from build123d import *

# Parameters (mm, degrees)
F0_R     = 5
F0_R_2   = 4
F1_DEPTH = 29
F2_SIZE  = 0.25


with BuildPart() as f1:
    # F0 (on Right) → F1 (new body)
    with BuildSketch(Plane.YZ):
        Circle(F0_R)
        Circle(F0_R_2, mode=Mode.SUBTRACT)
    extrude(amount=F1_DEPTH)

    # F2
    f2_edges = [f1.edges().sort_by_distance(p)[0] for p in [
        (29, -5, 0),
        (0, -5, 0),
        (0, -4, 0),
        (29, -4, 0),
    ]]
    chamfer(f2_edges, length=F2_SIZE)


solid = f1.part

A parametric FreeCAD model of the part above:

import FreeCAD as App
import Part
import Sketcher

V = App.Vector


def edges_at(feature, points):
    """Names of the edges that pass closest to the given points."""
    edges = feature.Shape.Edges
    near = lambda p: min(range(len(edges)), key=lambda i: edges[i].distToShape(Part.Vertex(*p))[0])
    return sorted({f"Edge{near(p) + 1}" for p in points})

doc = App.newDocument("Part")
body = doc.addObject("PartDesign::Body", "Body")

# Sketch on YZ plane
sketch1 = body.newObject("Sketcher::SketchObject", "Sketch")
sketch1.AttachmentSupport = (doc.getObject("YZ_Plane"), [""])
sketch1.MapMode = "FlatFace"
sketch1.addGeometry(Part.Circle(V(0, 0, 0), V(0, 0, 1), 5), False)
sketch1.addGeometry(Part.Circle(V(0, 0, 0), V(0, 0, 1), 4), False)
sketch1.addConstraint(Sketcher.Constraint("Coincident", 0, 3, -1, 1))
sketch1.addConstraint(Sketcher.Constraint("Coincident", 1, 3, -1, 1))
sketch1.addConstraint(Sketcher.Constraint("Diameter", 0, 10.0))
sketch1.addConstraint(Sketcher.Constraint("Diameter", 1, 8.0))
pad1 = body.newObject("PartDesign::Pad", "Pad")
pad1.Profile = sketch1
pad1.Length = 29
doc.recompute()

chamfer = body.newObject("PartDesign::Chamfer", "Chamfer")
chamfer.Base = (pad1, edges_at(pad1, [
    (29, -5, 0),
    (0, -5, 0),
    (0, -4, 0),
    (29, -4, 0),
]))
chamfer.Size = 0.25

doc.recompute()
